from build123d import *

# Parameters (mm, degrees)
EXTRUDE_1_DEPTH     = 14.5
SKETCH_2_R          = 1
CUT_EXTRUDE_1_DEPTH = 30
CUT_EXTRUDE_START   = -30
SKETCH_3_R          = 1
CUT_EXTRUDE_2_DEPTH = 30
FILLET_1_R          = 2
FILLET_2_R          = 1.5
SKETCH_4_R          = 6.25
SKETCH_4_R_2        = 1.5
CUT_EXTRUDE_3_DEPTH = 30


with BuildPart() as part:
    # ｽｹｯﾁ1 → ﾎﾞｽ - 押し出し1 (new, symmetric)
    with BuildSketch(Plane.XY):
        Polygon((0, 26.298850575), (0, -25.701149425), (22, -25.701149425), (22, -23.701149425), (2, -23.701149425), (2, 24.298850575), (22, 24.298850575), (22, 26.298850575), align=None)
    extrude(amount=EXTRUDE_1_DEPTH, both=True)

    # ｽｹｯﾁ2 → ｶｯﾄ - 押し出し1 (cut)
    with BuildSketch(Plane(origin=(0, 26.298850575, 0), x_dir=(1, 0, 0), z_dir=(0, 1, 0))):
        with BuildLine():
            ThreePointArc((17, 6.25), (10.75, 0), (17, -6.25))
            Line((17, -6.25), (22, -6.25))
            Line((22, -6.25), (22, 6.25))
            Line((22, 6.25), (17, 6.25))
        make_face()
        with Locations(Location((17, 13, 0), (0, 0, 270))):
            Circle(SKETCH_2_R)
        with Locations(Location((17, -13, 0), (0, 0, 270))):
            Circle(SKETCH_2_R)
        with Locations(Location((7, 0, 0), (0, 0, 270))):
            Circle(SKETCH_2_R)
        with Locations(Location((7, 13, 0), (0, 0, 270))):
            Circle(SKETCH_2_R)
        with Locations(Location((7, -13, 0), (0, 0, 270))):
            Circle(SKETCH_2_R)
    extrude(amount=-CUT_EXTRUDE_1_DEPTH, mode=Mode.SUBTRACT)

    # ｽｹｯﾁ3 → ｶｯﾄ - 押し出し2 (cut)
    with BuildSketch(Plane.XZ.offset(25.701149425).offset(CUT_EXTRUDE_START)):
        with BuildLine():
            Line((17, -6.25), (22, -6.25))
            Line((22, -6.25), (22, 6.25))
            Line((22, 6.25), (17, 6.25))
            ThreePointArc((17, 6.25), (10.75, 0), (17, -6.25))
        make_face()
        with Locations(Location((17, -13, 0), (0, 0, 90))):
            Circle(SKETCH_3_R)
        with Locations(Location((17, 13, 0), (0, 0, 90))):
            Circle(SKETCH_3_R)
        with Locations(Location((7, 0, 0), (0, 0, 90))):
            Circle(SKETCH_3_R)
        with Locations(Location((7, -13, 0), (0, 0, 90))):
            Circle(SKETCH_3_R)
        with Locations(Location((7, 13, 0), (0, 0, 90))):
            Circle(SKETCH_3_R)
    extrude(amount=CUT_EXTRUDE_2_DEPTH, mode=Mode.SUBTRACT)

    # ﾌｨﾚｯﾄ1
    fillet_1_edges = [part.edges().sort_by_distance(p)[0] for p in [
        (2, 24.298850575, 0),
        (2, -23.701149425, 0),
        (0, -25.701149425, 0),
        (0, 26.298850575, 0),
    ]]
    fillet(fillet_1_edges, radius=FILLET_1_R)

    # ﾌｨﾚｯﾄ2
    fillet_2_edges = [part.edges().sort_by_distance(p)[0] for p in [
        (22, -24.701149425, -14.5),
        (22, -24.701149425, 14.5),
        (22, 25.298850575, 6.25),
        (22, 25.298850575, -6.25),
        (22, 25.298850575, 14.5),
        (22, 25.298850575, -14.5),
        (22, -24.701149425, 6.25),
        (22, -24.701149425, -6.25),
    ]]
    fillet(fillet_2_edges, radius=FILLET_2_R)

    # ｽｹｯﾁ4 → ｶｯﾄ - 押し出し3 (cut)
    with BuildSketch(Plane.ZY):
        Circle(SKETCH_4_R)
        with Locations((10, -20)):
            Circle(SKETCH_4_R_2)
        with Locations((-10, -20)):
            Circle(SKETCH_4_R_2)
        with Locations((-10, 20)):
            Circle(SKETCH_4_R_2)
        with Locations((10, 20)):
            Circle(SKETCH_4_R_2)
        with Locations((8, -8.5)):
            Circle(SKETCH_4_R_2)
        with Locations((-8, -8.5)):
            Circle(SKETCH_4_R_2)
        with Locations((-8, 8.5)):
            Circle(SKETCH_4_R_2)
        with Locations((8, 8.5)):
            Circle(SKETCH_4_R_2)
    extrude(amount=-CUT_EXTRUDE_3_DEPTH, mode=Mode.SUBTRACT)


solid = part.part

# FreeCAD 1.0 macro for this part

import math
import FreeCAD as App
import Part
import Sketcher


def edges_at(feature, points):
    """Names of the edges that pass closest to the given points."""
    edges = feature.Shape.Edges
    near = lambda p: min(range(len(edges)), key=lambda i: edges[i].distToShape(Part.Vertex(*p))[0])
    return sorted({f"Edge{near(p) + 1}" for p in points})

doc = App.newDocument("Part")
body = doc.addObject("PartDesign::Body", "Body")

# Sketch on XY plane
sketch1 = doc.addObject("Sketcher::SketchObject", "Sketch")
body.addObject(sketch1)
sketch1.AttachmentSupport = (doc.XY_Plane, [""])
sketch1.MapMode = "FlatFace"
sketch1.addGeometry(Part.LineSegment(App.Vector(0, 26.3, 0), App.Vector(0, -25.7, 0)), False)
sketch1.addGeometry(Part.LineSegment(App.Vector(0, -25.7, 0), App.Vector(22, -25.7, 0)), False)
sketch1.addGeometry(Part.LineSegment(App.Vector(22, -25.7, 0), App.Vector(22, -23.7, 0)), False)
sketch1.addGeometry(Part.LineSegment(App.Vector(22, -23.7, 0), App.Vector(2, -23.7, 0)), False)
sketch1.addGeometry(Part.LineSegment(App.Vector(2, -23.7, 0), App.Vector(2, 24.3, 0)), False)
sketch1.addGeometry(Part.LineSegment(App.Vector(2, 24.3, 0), App.Vector(22, 24.3, 0)), False)
sketch1.addGeometry(Part.LineSegment(App.Vector(22, 24.3, 0), App.Vector(22, 26.3, 0)), False)
sketch1.addGeometry(Part.LineSegment(App.Vector(22, 26.3, 0), App.Vector(0, 26.3, 0)), False)
sketch1.addConstraint(Sketcher.Constraint("Coincident", 0, 2, 1, 1))
sketch1.addConstraint(Sketcher.Constraint("Coincident", 1, 2, 2, 1))
sketch1.addConstraint(Sketcher.Constraint("Coincident", 2, 2, 3, 1))
sketch1.addConstraint(Sketcher.Constraint("Coincident", 3, 2, 4, 1))
sketch1.addConstraint(Sketcher.Constraint("Coincident", 4, 2, 5, 1))
sketch1.addConstraint(Sketcher.Constraint("Coincident", 5, 2, 6, 1))
sketch1.addConstraint(Sketcher.Constraint("Coincident", 6, 2, 7, 1))
sketch1.addConstraint(Sketcher.Constraint("Coincident", 7, 2, 0, 1))
sketch1.addConstraint(Sketcher.Constraint("Vertical", 0))
sketch1.addConstraint(Sketcher.Constraint("Horizontal", 1))
sketch1.addConstraint(Sketcher.Constraint("Vertical", 2))
sketch1.addConstraint(Sketcher.Constraint("Horizontal", 3))
sketch1.addConstraint(Sketcher.Constraint("Vertical", 4))
sketch1.addConstraint(Sketcher.Constraint("Horizontal", 5))
sketch1.addConstraint(Sketcher.Constraint("Vertical", 6))
sketch1.addConstraint(Sketcher.Constraint("Horizontal", 7))
sketch1.addConstraint(Sketcher.Constraint("PointOnObject", 0, 2, -2))
sketch1.addConstraint(Sketcher.Constraint("Vertical", 2, 2, 5, 2))
sketch1.addConstraint(Sketcher.Constraint("Equal", 2, 6))
sketch1.addConstraint(Sketcher.Constraint("DistanceX", 1, 1, 1, 2, 22.0))
sketch1.addConstraint(Sketcher.Constraint("DistanceX", 3, 2, 3, 1, 20.0))
sketch1.addConstraint(Sketcher.Constraint("DistanceY", 0, 2, 0, 1, 52.0))
sketch1.addConstraint(Sketcher.Constraint("DistanceY", 2, 1, 2, 2, 2.0))
sketch1.addConstraint(Sketcher.Constraint("DistanceY", 0, 2, -1, 1, 25.701149))
pad1 = doc.addObject("PartDesign::Pad", "Pad")
body.addObject(pad1)
pad1.Profile = sketch1
pad1.Length = 29
pad1.Midplane = True

# Sketch on XZ plane
sketch2 = doc.addObject("Sketcher::SketchObject", "Sketch001")
body.addObject(sketch2)
sketch2.AttachmentSupport = (doc.XZ_Plane, [""])
sketch2.MapMode = "FlatFace"
sketch2.AttachmentOffset = App.Placement(App.Vector(0, 0, -26.298851), App.Rotation())
sketch2.addGeometry(Part.ArcOfCircle(Part.Circle(App.Vector(17, 0, 0), App.Vector(0, 0, 1), 6.2), math.radians(90), math.radians(270)), False)
sketch2.addGeometry(Part.LineSegment(App.Vector(17, 6.2, 0), App.Vector(22, 6.2, 0)), False)
sketch2.addGeometry(Part.LineSegment(App.Vector(22, 6.2, 0), App.Vector(22, -6.2, 0)), False)
sketch2.addGeometry(Part.LineSegment(App.Vector(22, -6.2, 0), App.Vector(17, -6.2, 0)), False)
sketch2.addGeometry(Part.Circle(App.Vector(17, -13, 0), App.Vector(0, 0, 1), 1), False)
sketch2.addGeometry(Part.Circle(App.Vector(17, 13, 0), App.Vector(0, 0, 1), 1), False)
sketch2.addGeometry(Part.Circle(App.Vector(7, 0, 0), App.Vector(0, 0, 1), 1), False)
sketch2.addGeometry(Part.Circle(App.Vector(7, -13, 0), App.Vector(0, 0, 1), 1), False)
sketch2.addGeometry(Part.Circle(App.Vector(7, 13, 0), App.Vector(0, 0, 1), 1), False)
sketch2.addConstraint(Sketcher.Constraint("Tangent", 0, 1, 1, 1))
sketch2.addConstraint(Sketcher.Constraint("Coincident", 1, 2, 2, 1))
sketch2.addConstraint(Sketcher.Constraint("Coincident", 2, 2, 3, 1))
sketch2.addConstraint(Sketcher.Constraint("Tangent", 3, 2, 0, 2))
sketch2.addConstraint(Sketcher.Constraint("Horizontal", 1))
sketch2.addConstraint(Sketcher.Constraint("Vertical", 2))
sketch2.addConstraint(Sketcher.Constraint("Horizontal", 3))
sketch2.addConstraint(Sketcher.Constraint("Equal", 4, 5))
sketch2.addConstraint(Sketcher.Constraint("Equal", 5, 6))
sketch2.addConstraint(Sketcher.Constraint("Equal", 6, 7))
sketch2.addConstraint(Sketcher.Constraint("Equal", 7, 8))
sketch2.addConstraint(Sketcher.Constraint("Symmetric", 4, 3, 5, 3, -1))
sketch2.addConstraint(Sketcher.Constraint("Symmetric", 7, 3, 8, 3, -1))
sketch2.addConstraint(Sketcher.Constraint("PointOnObject", 0, 3, -1))
sketch2.addConstraint(Sketcher.Constraint("PointOnObject", 6, 3, -1))
sketch2.addConstraint(Sketcher.Constraint("Horizontal", 4, 3, 7, 3))
sketch2.addConstraint(Sketcher.Constraint("Vertical", 0, 3, 4, 3))
sketch2.addConstraint(Sketcher.Constraint("Vertical", 6, 3, 7, 3))
sketch2.addConstraint(Sketcher.Constraint("Diameter", 4, 2.0))
sketch2.addConstraint(Sketcher.Constraint("DistanceX", 1, 1, 1, 2, 5.0))
sketch2.addConstraint(Sketcher.Constraint("Radius", 0, 6.25))
sketch2.addConstraint(Sketcher.Constraint("DistanceX", -1, 1, 0, 3, 17.0))
sketch2.addConstraint(Sketcher.Constraint("DistanceY", 4, 3, -1, 1, 13.0))
sketch2.addConstraint(Sketcher.Constraint("DistanceX", -1, 1, 6, 3, 7.0))
pocket1 = doc.addObject("PartDesign::Pocket", "Pocket")
body.addObject(pocket1)
pocket1.Profile = sketch2
pocket1.Length = 30
pocket1.Reversed = True

# Sketch on XZ plane
sketch3 = doc.addObject("Sketcher::SketchObject", "Sketch002")
body.addObject(sketch3)
sketch3.AttachmentSupport = (doc.XZ_Plane, [""])
sketch3.MapMode = "FlatFace"
sketch3.AttachmentOffset = App.Placement(App.Vector(0, 0, -4.298851), App.Rotation())
sketch3.addGeometry(Part.LineSegment(App.Vector(17, -6.2, 0), App.Vector(22, -6.2, 0)), False)
sketch3.addGeometry(Part.LineSegment(App.Vector(22, -6.2, 0), App.Vector(22, 6.2, 0)), False)
sketch3.addGeometry(Part.LineSegment(App.Vector(22, 6.2, 0), App.Vector(17, 6.2, 0)), False)
sketch3.addGeometry(Part.ArcOfCircle(Part.Circle(App.Vector(17, 0, 0), App.Vector(0, 0, 1), 6.2), math.radians(90), math.radians(270)), False)
sketch3.addGeometry(Part.Circle(App.Vector(17, -13, 0), App.Vector(0, 0, 1), 1), False)
sketch3.addGeometry(Part.Circle(App.Vector(17, 13, 0), App.Vector(0, 0, 1), 1), False)
sketch3.addGeometry(Part.Circle(App.Vector(7, 0, 0), App.Vector(0, 0, 1), 1), False)
sketch3.addGeometry(Part.Circle(App.Vector(7, -13, 0), App.Vector(0, 0, 1), 1), False)
sketch3.addGeometry(Part.Circle(App.Vector(7, 13, 0), App.Vector(0, 0, 1), 1), False)
sketch3.addConstraint(Sketcher.Constraint("Coincident", 0, 2, 1, 1))
sketch3.addConstraint(Sketcher.Constraint("Coincident", 1, 2, 2, 1))
sketch3.addConstraint(Sketcher.Constraint("Tangent", 2, 2, 3, 1))
sketch3.addConstraint(Sketcher.Constraint("Tangent", 3, 2, 0, 1))
sketch3.addConstraint(Sketcher.Constraint("Horizontal", 0))
sketch3.addConstraint(Sketcher.Constraint("Vertical", 1))
sketch3.addConstraint(Sketcher.Constraint("Horizontal", 2))
sketch3.addConstraint(Sketcher.Constraint("Equal", 4, 5))
sketch3.addConstraint(Sketcher.Constraint("Equal", 5, 6))
sketch3.addConstraint(Sketcher.Constraint("Equal", 6, 7))
sketch3.addConstraint(Sketcher.Constraint("Equal", 7, 8))
sketch3.addConstraint(Sketcher.Constraint("Symmetric", 4, 3, 5, 3, -1))
sketch3.addConstraint(Sketcher.Constraint("Symmetric", 7, 3, 8, 3, -1))
sketch3.addConstraint(Sketcher.Constraint("PointOnObject", 3, 3, -1))
sketch3.addConstraint(Sketcher.Constraint("PointOnObject", 6, 3, -1))
sketch3.addConstraint(Sketcher.Constraint("Horizontal", 4, 3, 7, 3))
sketch3.addConstraint(Sketcher.Constraint("Vertical", 3, 3, 4, 3))
sketch3.addConstraint(Sketcher.Constraint("Vertical", 6, 3, 7, 3))
sketch3.addConstraint(Sketcher.Constraint("Diameter", 4, 2.0))
sketch3.addConstraint(Sketcher.Constraint("DistanceX", 0, 1, 0, 2, 5.0))
sketch3.addConstraint(Sketcher.Constraint("Radius", 3, 6.25))
sketch3.addConstraint(Sketcher.Constraint("DistanceX", -1, 1, 3, 3, 17.0))
sketch3.addConstraint(Sketcher.Constraint("DistanceY", 4, 3, -1, 1, 13.0))
sketch3.addConstraint(Sketcher.Constraint("DistanceX", -1, 1, 6, 3, 7.0))
pocket2 = doc.addObject("PartDesign::Pocket", "Pocket001")
body.addObject(pocket2)
pocket2.Profile = sketch3
pocket2.Length = 30
pocket2.Reversed = True
doc.recompute()

fillet = doc.addObject("PartDesign::Fillet", "Fillet")
body.addObject(fillet)
fillet.Base = (pocket2, edges_at(pocket2, [
    (2, 24.299, 0),
    (2, -23.701, 0),
    (0, -25.701, 0),
    (0, 26.299, 0),
]))
fillet.Radius = 2
doc.recompute()

fillet2 = doc.addObject("PartDesign::Fillet", "Fillet001")
body.addObject(fillet2)
fillet2.Base = (fillet, edges_at(fillet, [
    (22, -24.701, -14.5),
    (22, -24.701, 14.5),
    (22, 25.299, 6.25),
    (22, 25.299, -6.25),
    (22, 25.299, 14.5),
    (22, 25.299, -14.5),
    (22, -24.701, 6.25),
    (22, -24.701, -6.25),
]))
fillet2.Radius = 1.5

# Sketch on YZ plane
sketch4 = doc.addObject("Sketcher::SketchObject", "Sketch003")
body.addObject(sketch4)
sketch4.AttachmentSupport = (doc.YZ_Plane, [""])
sketch4.MapMode = "FlatFace"
sketch4.addGeometry(Part.Circle(App.Vector(0, 0, 0), App.Vector(0, 0, 1), 6.2), False)
sketch4.addGeometry(Part.Circle(App.Vector(-20, 10, 0), App.Vector(0, 0, 1), 1.5), False)
sketch4.addGeometry(Part.Circle(App.Vector(-20, -10, 0), App.Vector(0, 0, 1), 1.5), False)
sketch4.addGeometry(Part.Circle(App.Vector(20, -10, 0), App.Vector(0, 0, 1), 1.5), False)
sketch4.addGeometry(Part.Circle(App.Vector(20, 10, 0), App.Vector(0, 0, 1), 1.5), False)
sketch4.addGeometry(Part.Circle(App.Vector(-8.5, 8, 0), App.Vector(0, 0, 1), 1.5), False)
sketch4.addGeometry(Part.Circle(App.Vector(-8.5, -8, 0), App.Vector(0, 0, 1), 1.5), False)
sketch4.addGeometry(Part.Circle(App.Vector(8.5, -8, 0), App.Vector(0, 0, 1), 1.5), False)
sketch4.addGeometry(Part.Circle(App.Vector(8.5, 8, 0), App.Vector(0, 0, 1), 1.5), False)
sketch4.addConstraint(Sketcher.Constraint("Coincident", 0, 3, -1, 1))
sketch4.addConstraint(Sketcher.Constraint("Equal", 1, 2))
sketch4.addConstraint(Sketcher.Constraint("Equal", 2, 3))
sketch4.addConstraint(Sketcher.Constraint("Equal", 3, 4))
sketch4.addConstraint(Sketcher.Constraint("Equal", 4, 5))
sketch4.addConstraint(Sketcher.Constraint("Equal", 5, 6))
sketch4.addConstraint(Sketcher.Constraint("Equal", 6, 7))
sketch4.addConstraint(Sketcher.Constraint("Equal", 7, 8))
sketch4.addConstraint(Sketcher.Constraint("Symmetric", 1, 3, 3, 3, -1, 1))
sketch4.addConstraint(Sketcher.Constraint("Symmetric", 2, 3, 4, 3, -1, 1))
sketch4.addConstraint(Sketcher.Constraint("Symmetric", 5, 3, 7, 3, -1, 1))
sketch4.addConstraint(Sketcher.Constraint("Symmetric", 6, 3, 8, 3, -1, 1))
sketch4.addConstraint(Sketcher.Constraint("Symmetric", 2, 3, 3, 3, -2))
sketch4.addConstraint(Sketcher.Constraint("Symmetric", 6, 3, 7, 3, -2))
sketch4.addConstraint(Sketcher.Constraint("Diameter", 1, 3.0))
sketch4.addConstraint(Sketcher.Constraint("Diameter", 0, 12.5))
sketch4.addConstraint(Sketcher.Constraint("DistanceX", 1, 3, -1, 1, 20.0))
sketch4.addConstraint(Sketcher.Constraint("DistanceY", -1, 1, 1, 3, 10.0))
sketch4.addConstraint(Sketcher.Constraint("DistanceY", -1, 1, 5, 3, 8.0))
sketch4.addConstraint(Sketcher.Constraint("DistanceX", 6, 3, 7, 3, 17.0))
pocket3 = doc.addObject("PartDesign::Pocket", "Pocket002")
body.addObject(pocket3)
pocket3.Profile = sketch4
pocket3.Length = 30
pocket3.Reversed = True

doc.recompute()
